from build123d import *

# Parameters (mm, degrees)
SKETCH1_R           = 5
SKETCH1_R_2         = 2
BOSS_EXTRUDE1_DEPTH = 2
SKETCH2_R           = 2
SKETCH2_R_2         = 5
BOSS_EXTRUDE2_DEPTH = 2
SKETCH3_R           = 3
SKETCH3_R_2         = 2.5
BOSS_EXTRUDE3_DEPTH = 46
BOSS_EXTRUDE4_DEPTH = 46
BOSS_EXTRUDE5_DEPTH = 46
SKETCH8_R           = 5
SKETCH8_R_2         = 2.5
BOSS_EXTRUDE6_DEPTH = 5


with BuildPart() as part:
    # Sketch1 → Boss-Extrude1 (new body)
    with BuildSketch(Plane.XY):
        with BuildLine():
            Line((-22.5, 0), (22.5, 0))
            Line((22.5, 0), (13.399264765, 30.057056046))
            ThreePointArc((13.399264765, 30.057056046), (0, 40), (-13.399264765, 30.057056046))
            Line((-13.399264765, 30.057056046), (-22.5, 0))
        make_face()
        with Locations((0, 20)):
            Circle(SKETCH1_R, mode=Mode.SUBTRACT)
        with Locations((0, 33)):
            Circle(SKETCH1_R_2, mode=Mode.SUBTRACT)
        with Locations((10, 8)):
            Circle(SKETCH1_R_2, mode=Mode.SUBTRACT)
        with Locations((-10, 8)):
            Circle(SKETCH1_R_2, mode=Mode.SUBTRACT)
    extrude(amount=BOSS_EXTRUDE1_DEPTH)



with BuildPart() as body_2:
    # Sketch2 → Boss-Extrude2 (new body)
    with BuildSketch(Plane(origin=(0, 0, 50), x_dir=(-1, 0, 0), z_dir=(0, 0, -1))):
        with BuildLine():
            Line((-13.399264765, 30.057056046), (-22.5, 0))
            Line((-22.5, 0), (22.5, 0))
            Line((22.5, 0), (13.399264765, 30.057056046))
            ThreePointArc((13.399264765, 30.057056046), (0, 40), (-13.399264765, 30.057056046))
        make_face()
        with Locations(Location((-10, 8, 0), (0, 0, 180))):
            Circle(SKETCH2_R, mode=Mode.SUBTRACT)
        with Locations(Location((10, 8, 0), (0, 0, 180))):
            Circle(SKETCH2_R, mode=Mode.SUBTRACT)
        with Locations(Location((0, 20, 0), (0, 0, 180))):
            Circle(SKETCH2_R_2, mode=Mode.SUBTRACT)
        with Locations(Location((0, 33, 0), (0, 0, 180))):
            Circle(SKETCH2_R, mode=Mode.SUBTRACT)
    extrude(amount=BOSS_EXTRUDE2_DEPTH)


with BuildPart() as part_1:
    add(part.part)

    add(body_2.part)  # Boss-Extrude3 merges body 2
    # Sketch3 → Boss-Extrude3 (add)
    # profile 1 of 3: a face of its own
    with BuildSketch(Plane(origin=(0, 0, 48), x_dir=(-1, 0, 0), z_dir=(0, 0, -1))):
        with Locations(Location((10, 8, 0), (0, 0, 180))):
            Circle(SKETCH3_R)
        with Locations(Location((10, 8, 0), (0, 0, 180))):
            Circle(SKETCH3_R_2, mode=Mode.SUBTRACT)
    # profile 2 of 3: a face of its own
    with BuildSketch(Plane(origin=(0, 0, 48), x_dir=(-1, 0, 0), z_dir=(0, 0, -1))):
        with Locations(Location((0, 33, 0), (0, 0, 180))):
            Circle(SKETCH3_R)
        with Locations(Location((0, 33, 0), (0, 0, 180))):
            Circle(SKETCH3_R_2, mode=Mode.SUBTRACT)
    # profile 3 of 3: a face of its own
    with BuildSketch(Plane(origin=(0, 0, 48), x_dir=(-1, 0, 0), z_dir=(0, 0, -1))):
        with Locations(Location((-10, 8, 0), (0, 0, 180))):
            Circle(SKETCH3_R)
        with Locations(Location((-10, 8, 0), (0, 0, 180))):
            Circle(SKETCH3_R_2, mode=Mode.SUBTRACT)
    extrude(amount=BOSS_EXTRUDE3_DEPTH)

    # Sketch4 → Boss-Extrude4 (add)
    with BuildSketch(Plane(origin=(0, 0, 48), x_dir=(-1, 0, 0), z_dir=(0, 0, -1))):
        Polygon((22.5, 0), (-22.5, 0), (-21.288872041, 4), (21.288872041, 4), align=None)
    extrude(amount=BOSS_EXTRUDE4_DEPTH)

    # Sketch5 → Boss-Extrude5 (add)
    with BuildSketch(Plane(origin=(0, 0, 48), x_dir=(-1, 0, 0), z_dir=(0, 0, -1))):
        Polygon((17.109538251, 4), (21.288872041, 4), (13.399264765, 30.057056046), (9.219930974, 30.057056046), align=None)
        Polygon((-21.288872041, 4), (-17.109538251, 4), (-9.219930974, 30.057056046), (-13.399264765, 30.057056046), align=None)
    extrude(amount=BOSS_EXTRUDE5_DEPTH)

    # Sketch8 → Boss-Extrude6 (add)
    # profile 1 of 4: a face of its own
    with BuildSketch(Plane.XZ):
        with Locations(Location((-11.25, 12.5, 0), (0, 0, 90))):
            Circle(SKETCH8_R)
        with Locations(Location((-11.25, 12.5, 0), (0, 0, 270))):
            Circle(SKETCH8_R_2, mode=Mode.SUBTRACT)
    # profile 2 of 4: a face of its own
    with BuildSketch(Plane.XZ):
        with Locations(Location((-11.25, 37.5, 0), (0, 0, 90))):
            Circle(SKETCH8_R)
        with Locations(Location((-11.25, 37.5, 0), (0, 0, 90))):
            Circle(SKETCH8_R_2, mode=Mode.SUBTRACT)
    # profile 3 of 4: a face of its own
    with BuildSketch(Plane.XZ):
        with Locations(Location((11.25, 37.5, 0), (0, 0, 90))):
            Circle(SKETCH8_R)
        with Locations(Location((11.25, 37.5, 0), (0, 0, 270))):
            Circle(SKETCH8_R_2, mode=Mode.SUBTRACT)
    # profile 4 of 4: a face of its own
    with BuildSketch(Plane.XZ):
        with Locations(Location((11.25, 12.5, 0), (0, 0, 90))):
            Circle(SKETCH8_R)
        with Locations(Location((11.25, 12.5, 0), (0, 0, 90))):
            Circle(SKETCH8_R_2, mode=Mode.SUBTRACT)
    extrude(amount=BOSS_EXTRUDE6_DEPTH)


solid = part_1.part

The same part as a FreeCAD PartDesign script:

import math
import FreeCAD as App
import Part
import Sketcher
from FreeCAD import Vector
Q = App.Units.Quantity


def add_polygon(sketch, points):
    """Adds a closed chain of lines whose ends are joined by coincident constraints."""
    first, n = sketch.GeometryCount, len(points)
    for a, b in zip(points, points[1:] + points[:1]):
        sketch.addGeometry(Part.LineSegment(App.Vector(*a, 0), App.Vector(*b, 0)), False)
    for i in range(n):
        sketch.addConstraint(Sketcher.Constraint("Coincident", first + i, 2, first + (i + 1) % n, 1))

doc = App.newDocument("Part")
body = doc.addObject("PartDesign::Body", "Body")

# Sketch on XY plane
sketch1 = body.newObject("Sketcher::SketchObject", "Sketch")
sketch1.AttachmentSupport = (doc.getObject("XY_Plane"), [""])
sketch1.MapMode = "FlatFace"
sketch1.addGeometry([
    Part.LineSegment(Vector(-22.5, 0, 0), Vector(22.5, 0, 0)),  # 0
    Part.LineSegment(Vector(22.5, 0, 0), Vector(13.4, 30.1, 0)),  # 1
    Part.ArcOfCircle(Part.Circle(Vector(0, 26, 0), Vector(0, 0, 1), 14), math.radians(17), math.radians(163)),  # 2
    Part.LineSegment(Vector(-13.4, 30.1, 0), Vector(-22.5, 0, 0)),  # 3
    Part.Circle(Vector(-10, 8, 0), Vector(0, 0, 1), 2),  # 4
    Part.Circle(Vector(10, 8, 0), Vector(0, 0, 1), 2),  # 5
    Part.Circle(Vector(0, 20, 0), Vector(0, 0, 1), 5),  # 6
    Part.Circle(Vector(0, 33, 0), Vector(0, 0, 1), 2),  # 7
], False)
sketch1.addConstraint([
    Sketcher.Constraint("Coincident", 0, 2, 1, 1),
    Sketcher.Constraint("Tangent", 1, 2, 2, 1),
    Sketcher.Constraint("Tangent", 2, 2, 3, 1),
    Sketcher.Constraint("Coincident", 3, 2, 0, 1),
    Sketcher.Constraint("Horizontal", 0),
    Sketcher.Constraint("Equal", 4, 5),
    Sketcher.Constraint("Equal", 5, 7),
    Sketcher.Constraint("Symmetric", 0, 2, 3, 2, -1, 1),
    Sketcher.Constraint("Symmetric", 4, 3, 5, 3, -2),
    Sketcher.Constraint("PointOnObject", 2, 3, -2),
    Sketcher.Constraint("PointOnObject", 6, 3, -2),
    Sketcher.Constraint("PointOnObject", 7, 3, -2),
    Sketcher.Constraint("Diameter", 4, Q("4 mm")),
    Sketcher.Constraint("Diameter", 6, Q("10 mm")),
    Sketcher.Constraint("Radius", 2, Q("14 mm")),
    Sketcher.Constraint("DistanceX", 0, 1, 0, 2, Q("45 mm")),
    Sketcher.Constraint("DistanceY", -1, 1, 2, 3, Q("26 mm")),
    Sketcher.Constraint("DistanceX", 4, 3, -1, 1, Q("10 mm")),
    Sketcher.Constraint("DistanceY", -1, 1, 4, 3, Q("8 mm")),
    Sketcher.Constraint("DistanceY", -1, 1, 6, 3, Q("20 mm")),
    Sketcher.Constraint("DistanceY", -1, 1, 7, 3, Q("33 mm")),
])
pad1 = body.newObject("PartDesign::Pad", "Pad")
pad1.Profile = sketch1
pad1.Length = 2
body2 = doc.addObject("PartDesign::Body", "Body001")

# Sketch on XY plane
sketch2 = body2.newObject("Sketcher::SketchObject", "Sketch001")
sketch2.AttachmentSupport = (doc.getObject("XY_Plane001"), [""])
sketch2.MapMode = "FlatFace"
sketch2.AttachmentOffset = App.Placement(Vector(0, 0, 50), App.Rotation())
sketch2.addGeometry([
    Part.LineSegment(Vector(13.4, 30.1, 0), Vector(22.5, 0, 0)),  # 0
    Part.LineSegment(Vector(22.5, 0, 0), Vector(-22.5, 0, 0)),  # 1
    Part.LineSegment(Vector(-22.5, 0, 0), Vector(-13.4, 30.1, 0)),  # 2
    Part.ArcOfCircle(Part.Circle(Vector(0, 26, 0), Vector(0, 0, 1), 14), math.radians(17), math.radians(163)),  # 3
    Part.Circle(Vector(10, 8, 0), Vector(0, 0, 1), 2),  # 4
    Part.Circle(Vector(-10, 8, 0), Vector(0, 0, 1), 2),  # 5
    Part.Circle(Vector(0, 20, 0), Vector(0, 0, 1), 5),  # 6
    Part.Circle(Vector(0, 33, 0), Vector(0, 0, 1), 2),  # 7
], False)
sketch2.addConstraint([
    Sketcher.Constraint("Coincident", 0, 2, 1, 1),
    Sketcher.Constraint("Coincident", 1, 2, 2, 1),
    Sketcher.Constraint("Tangent", 2, 2, 3, 2),
    Sketcher.Constraint("Tangent", 3, 1, 0, 1),
    Sketcher.Constraint("Horizontal", 1),
    Sketcher.Constraint("Equal", 4, 5),
    Sketcher.Constraint("Equal", 5, 7),
    Sketcher.Constraint("Symmetric", 0, 2, 1, 2, -1, 1),
    Sketcher.Constraint("Symmetric", 4, 3, 5, 3, -2),
    Sketcher.Constraint("PointOnObject", 3, 3, -2),
    Sketcher.Constraint("PointOnObject", 6, 3, -2),
    Sketcher.Constraint("PointOnObject", 7, 3, -2),
    Sketcher.Constraint("Diameter", 4, Q("4 mm")),
    Sketcher.Constraint("Diameter", 6, Q("10 mm")),
    Sketcher.Constraint("Radius", 3, Q("14 mm")),
    Sketcher.Constraint("DistanceX", 1, 2, 1, 1, Q("45 mm")),
    Sketcher.Constraint("DistanceY", -1, 1, 3, 3, Q("26 mm")),
    Sketcher.Constraint("DistanceX", -1, 1, 4, 3, Q("10 mm")),
    Sketcher.Constraint("DistanceY", -1, 1, 4, 3, Q("8 mm")),
    Sketcher.Constraint("DistanceY", -1, 1, 6, 3, Q("20 mm")),
    Sketcher.Constraint("DistanceY", -1, 1, 7, 3, Q("33 mm")),
])
pad2 = body2.newObject("PartDesign::Pad", "Pad001")
pad2.Profile = sketch2
pad2.Length = 2
pad2.Reversed = True
body.AllowCompound = True
doc.recompute()

boolean = body.newObject("PartDesign::Boolean", "Boolean")
boolean.Type = "Fuse"
boolean.addObjects([body2])

# Sketch on XY plane
sketch3 = body.newObject("Sketcher::SketchObject", "Sketch002")
sketch3.AttachmentSupport = (doc.getObject("XY_Plane"), [""])
sketch3.MapMode = "FlatFace"
sketch3.AttachmentOffset = App.Placement(Vector(0, 0, 48), App.Rotation())
sketch3.addGeometry([
    Part.Circle(Vector(-10, 8, 0), Vector(0, 0, 1), 3),  # 0
    Part.Circle(Vector(-10, 8, 0), Vector(0, 0, 1), 2.5),  # 1
    Part.Circle(Vector(0, 33, 0), Vector(0, 0, 1), 3),  # 2
    Part.Circle(Vector(0, 33, 0), Vector(0, 0, 1), 2.5),  # 3
    Part.Circle(Vector(10, 8, 0), Vector(0, 0, 1), 3),  # 4
    Part.Circle(Vector(10, 8, 0), Vector(0, 0, 1), 2.5),  # 5
], False)
sketch3.addConstraint([
    Sketcher.Constraint("Coincident", 1, 3, 0, 3),
    Sketcher.Constraint("Coincident", 3, 3, 2, 3),
    Sketcher.Constraint("Coincident", 5, 3, 4, 3),
    Sketcher.Constraint("Equal", 0, 2),
    Sketcher.Constraint("Equal", 1, 3),
    Sketcher.Constraint("Equal", 2, 4),
    Sketcher.Constraint("Equal", 3, 5),
    Sketcher.Constraint("Symmetric", 0, 3, 4, 3, -2),
    Sketcher.Constraint("PointOnObject", 2, 3, -2),
    Sketcher.Constraint("Diameter", 0, Q("6 mm")),
    Sketcher.Constraint("Diameter", 1, Q("5 mm")),
    Sketcher.Constraint("DistanceX", 0, 3, -1, 1, Q("10 mm")),
    Sketcher.Constraint("DistanceY", -1, 1, 0, 3, Q("8 mm")),
    Sketcher.Constraint("DistanceY", -1, 1, 2, 3, Q("33 mm")),
])
pad3 = body.newObject("PartDesign::Pad", "Pad002")
pad3.Profile = sketch3
pad3.Length = 46
pad3.Reversed = True

# Sketch on XY plane
sketch4 = body.newObject("Sketcher::SketchObject", "Sketch003")
sketch4.AttachmentSupport = (doc.getObject("XY_Plane"), [""])
sketch4.MapMode = "FlatFace"
sketch4.AttachmentOffset = App.Placement(Vector(0, 0, 48), App.Rotation())
add_polygon(sketch4, [(22.5, 0), (-22.5, 0), (-21.3, 4), (21.3, 4)])  # lines 0-3
sketch4.addConstraint([
    Sketcher.Constraint("Horizontal", 0),
    Sketcher.Constraint("Horizontal", 2),
    Sketcher.Constraint("Symmetric", 0, 2, 3, 2, -1, 1),
    Sketcher.Constraint("Equal", 1, 3),
    Sketcher.Constraint("DistanceX", 0, 2, 0, 1, Q("45 mm")),
    Sketcher.Constraint("DistanceY", -1, 1, 1, 2, Q("4 mm")),
    Sketcher.Constraint("DistanceX", 2, 1, 2, 2, Q("42.577744 mm")),
])
pad4 = body.newObject("PartDesign::Pad", "Pad003")
pad4.Profile = sketch4
pad4.Length = 46
pad4.Reversed = True

# Sketch on XY plane
sketch5 = body.newObject("Sketcher::SketchObject", "Sketch004")
sketch5.AttachmentSupport = (doc.getObject("XY_Plane"), [""])
sketch5.MapMode = "FlatFace"
sketch5.AttachmentOffset = App.Placement(Vector(0, 0, 48), App.Rotation())
add_polygon(sketch5, [(-17.1, 4), (-21.3, 4), (-13.4, 30.1), (-9.2, 30.1)])  # lines 0-3
add_polygon(sketch5, [(21.3, 4), (17.1, 4), (9.2, 30.1), (13.4, 30.1)])  # lines 4-7
sketch5.addConstraint([
    Sketcher.Constraint("Horizontal", 0),
    Sketcher.Constraint("Horizontal", 2),
    Sketcher.Constraint("Horizontal", 4),
    Sketcher.Constraint("Horizontal", 6),
    Sketcher.Constraint("Symmetric", 3, 2, 4, 2, -2),
    Sketcher.Constraint("Symmetric", 2, 2, 5, 2, -2),
    Sketcher.Constraint("Parallel", 1, 3),
    Sketcher.Constraint("Parallel", 5, 7),
    Sketcher.Constraint("Equal", 2, 4),
    Sketcher.Constraint("DistanceY", -1, 1, 0, 2, Q("4 mm")),
    Sketcher.Constraint("DistanceX", 0, 2, 0, 1, Q("4.179334 mm")),
    Sketcher.Constraint("DistanceX", 2, 2, -1, 1, Q("9.219931 mm")),
    Sketcher.Constraint("DistanceX", 3, 2, -1, 1, Q("17.109538 mm")),
    Sketcher.Constraint("Distance", 1, Q("27.225284 mm")),
])
pad5 = body.newObject("PartDesign::Pad", "Pad004")
pad5.Profile = sketch5
pad5.Length = 46
pad5.Reversed = True

# Sketch on XZ plane
sketch6 = body.newObject("Sketcher::SketchObject", "Sketch005")
sketch6.AttachmentSupport = (doc.getObject("XZ_Plane"), [""])
sketch6.MapMode = "FlatFace"
sketch6.addGeometry([
    Part.Circle(Vector(-11.2, 12.5, 0), Vector(0, 0, 1), 5),  # 0
    Part.Circle(Vector(-11.2, 12.5, 0), Vector(0, 0, 1), 2.5),  # 1
    Part.Circle(Vector(-11.2, 37.5, 0), Vector(0, 0, 1), 5),  # 2
    Part.Circle(Vector(-11.2, 37.5, 0), Vector(0, 0, 1), 2.5),  # 3
    Part.Circle(Vector(11.2, 37.5, 0), Vector(0, 0, 1), 5),  # 4
    Part.Circle(Vector(11.2, 37.5, 0), Vector(0, 0, 1), 2.5),  # 5
    Part.Circle(Vector(11.2, 12.5, 0), Vector(0, 0, 1), 5),  # 6
    Part.Circle(Vector(11.2, 12.5, 0), Vector(0, 0, 1), 2.5),  # 7
], False)
sketch6.addConstraint([
    Sketcher.Constraint("Coincident", 1, 3, 0, 3),
    Sketcher.Constraint("Coincident", 3, 3, 2, 3),
    Sketcher.Constraint("Coincident", 5, 3, 4, 3),
    Sketcher.Constraint("Coincident", 7, 3, 6, 3),
    Sketcher.Constraint("Equal", 0, 2),
    Sketcher.Constraint("Equal", 1, 3),
    Sketcher.Constraint("Equal", 2, 4),
    Sketcher.Constraint("Equal", 3, 5),
    Sketcher.Constraint("Equal", 4, 6),
    Sketcher.Constraint("Equal", 5, 7),
    Sketcher.Constraint("Symmetric", 2, 3, 4, 3, -2),
    Sketcher.Constraint("Symmetric", 0, 3, 6, 3, -2),
    Sketcher.Constraint("Vertical", 1, 3, 2, 3),
    Sketcher.Constraint("Diameter", 0, Q("10 mm")),
    Sketcher.Constraint("Diameter", 1, Q("5 mm")),
    Sketcher.Constraint("DistanceY", 0, 3, 2, 3, Q("25 mm")),
    Sketcher.Constraint("DistanceY", -1, 1, 0, 3, Q("12.5 mm")),
    Sketcher.Constraint("DistanceX", 2, 3, 4, 3, Q("22.5 mm")),
])
pad6 = body.newObject("PartDesign::Pad", "Pad005")
pad6.Profile = sketch6
pad6.Length = 5

doc.recompute()
